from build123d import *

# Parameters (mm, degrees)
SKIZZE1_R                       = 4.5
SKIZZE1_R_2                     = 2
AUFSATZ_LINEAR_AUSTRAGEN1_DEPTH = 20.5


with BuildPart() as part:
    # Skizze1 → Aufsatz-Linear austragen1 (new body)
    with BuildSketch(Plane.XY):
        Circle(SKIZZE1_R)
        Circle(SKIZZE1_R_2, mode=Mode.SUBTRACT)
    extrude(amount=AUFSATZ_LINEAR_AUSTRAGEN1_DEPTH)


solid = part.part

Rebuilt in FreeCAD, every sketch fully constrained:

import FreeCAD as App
import Part
import Sketcher

V = App.Vector

doc = App.newDocument("Part")
body = doc.addObject("PartDesign::Body", "Body")

# Sketch on XY plane
sketch1 = body.newObject("Sketcher::SketchObject", "Sketch")
sketch1.AttachmentSupport = (doc.getObject("XY_Plane"), [""])
sketch1.MapMode = "FlatFace"
sketch1.addGeometry([
    Part.Circle(V(0, 0, 0), V(0, 0, 1), 4.5),
    Part.Circle(V(0, 0, 0), V(0, 0, 1), 2),
], False)
sketch1.addConstraint([
    Sketcher.Constraint("Coincident", 0, 3, -1, 1),
    Sketcher.Constraint("Coincident", 1, 3, -1, 1),
    Sketcher.Constraint("Diameter", 0, 9.0),
    Sketcher.Constraint("Diameter", 1, 4.0),
])
pad1 = body.newObject("PartDesign::Pad", "Pad")
pad1.Profile = sketch1
pad1.Length = 20.5

doc.recompute()
